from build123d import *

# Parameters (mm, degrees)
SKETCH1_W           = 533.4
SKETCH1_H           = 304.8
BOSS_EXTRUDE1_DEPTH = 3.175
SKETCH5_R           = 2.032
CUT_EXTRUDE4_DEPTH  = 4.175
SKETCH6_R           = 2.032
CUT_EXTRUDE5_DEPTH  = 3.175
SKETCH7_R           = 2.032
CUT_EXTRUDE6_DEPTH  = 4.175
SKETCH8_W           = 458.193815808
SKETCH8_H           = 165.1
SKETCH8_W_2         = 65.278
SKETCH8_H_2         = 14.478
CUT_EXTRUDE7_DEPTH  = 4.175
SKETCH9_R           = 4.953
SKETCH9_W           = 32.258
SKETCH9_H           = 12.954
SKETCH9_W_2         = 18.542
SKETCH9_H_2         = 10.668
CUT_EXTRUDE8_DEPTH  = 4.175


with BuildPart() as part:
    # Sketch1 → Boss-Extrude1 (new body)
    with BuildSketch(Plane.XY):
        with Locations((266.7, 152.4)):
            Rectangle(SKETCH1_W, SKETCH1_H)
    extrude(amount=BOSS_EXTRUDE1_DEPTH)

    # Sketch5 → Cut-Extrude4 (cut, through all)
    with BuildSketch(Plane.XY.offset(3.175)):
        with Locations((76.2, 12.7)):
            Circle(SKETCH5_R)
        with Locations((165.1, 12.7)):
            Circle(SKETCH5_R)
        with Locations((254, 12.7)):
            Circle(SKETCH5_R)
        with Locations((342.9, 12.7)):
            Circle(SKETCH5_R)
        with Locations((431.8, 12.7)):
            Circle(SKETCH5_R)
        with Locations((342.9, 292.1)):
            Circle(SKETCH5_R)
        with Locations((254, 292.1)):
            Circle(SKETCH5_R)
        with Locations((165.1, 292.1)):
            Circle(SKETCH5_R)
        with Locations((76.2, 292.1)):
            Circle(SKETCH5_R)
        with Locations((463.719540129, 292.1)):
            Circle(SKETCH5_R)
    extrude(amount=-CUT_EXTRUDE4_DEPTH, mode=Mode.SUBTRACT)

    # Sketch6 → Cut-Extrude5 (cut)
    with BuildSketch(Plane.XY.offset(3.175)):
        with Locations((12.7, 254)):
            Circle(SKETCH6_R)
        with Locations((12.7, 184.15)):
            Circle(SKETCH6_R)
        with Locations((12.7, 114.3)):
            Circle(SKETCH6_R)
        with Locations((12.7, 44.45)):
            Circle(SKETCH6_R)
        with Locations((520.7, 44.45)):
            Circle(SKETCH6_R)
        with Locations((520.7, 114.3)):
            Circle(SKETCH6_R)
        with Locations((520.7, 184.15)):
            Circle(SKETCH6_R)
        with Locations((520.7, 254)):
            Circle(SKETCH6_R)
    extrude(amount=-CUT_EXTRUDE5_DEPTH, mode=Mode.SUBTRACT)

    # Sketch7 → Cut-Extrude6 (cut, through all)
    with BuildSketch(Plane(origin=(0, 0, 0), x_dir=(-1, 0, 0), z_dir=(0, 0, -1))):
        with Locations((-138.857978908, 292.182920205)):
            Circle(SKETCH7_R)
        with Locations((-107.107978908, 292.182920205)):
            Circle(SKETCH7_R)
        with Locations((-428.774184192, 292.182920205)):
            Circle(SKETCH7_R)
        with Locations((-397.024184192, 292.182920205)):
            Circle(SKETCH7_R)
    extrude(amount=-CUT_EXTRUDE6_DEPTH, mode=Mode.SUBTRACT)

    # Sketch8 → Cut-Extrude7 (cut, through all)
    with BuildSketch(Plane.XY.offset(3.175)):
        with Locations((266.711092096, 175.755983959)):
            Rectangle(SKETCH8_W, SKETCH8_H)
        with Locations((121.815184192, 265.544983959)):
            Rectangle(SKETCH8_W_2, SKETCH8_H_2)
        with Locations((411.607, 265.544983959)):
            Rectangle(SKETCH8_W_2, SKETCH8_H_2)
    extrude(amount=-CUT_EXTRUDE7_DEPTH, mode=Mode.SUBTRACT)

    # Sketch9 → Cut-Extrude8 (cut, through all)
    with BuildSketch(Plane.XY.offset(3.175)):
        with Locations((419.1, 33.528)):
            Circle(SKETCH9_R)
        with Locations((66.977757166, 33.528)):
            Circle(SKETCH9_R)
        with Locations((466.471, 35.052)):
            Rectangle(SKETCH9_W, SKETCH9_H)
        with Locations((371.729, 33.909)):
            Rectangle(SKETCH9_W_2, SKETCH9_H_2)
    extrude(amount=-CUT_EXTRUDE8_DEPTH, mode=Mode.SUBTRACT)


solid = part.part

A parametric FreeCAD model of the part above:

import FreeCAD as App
import Part
import Sketcher

V = App.Vector
Q = App.Units.Quantity

doc = App.newDocument("Part")
params = doc.addObject("Spreadsheet::Sheet", "Params")
for row, (alias, value) in enumerate([
    ("sketch1_width", "21 in"),
    ("sketch1_height", "12 in"),
    ("pad1_length", "0.125 in"),
    ("sketch2_diameter", "0.16 in"),
    ("sketch3_diameter", "0.16 in"),
    ("pocket2_length", "0.125 in"),
    ("sketch4_diameter", "0.16 in"),
    ("sketch5_height", "6.5 in"),
    ("sketch5_width", "2.03 in"),
    ("sketch5_width2", "2.57 in"),
    ("sketch5_height2", "0.57 in"),
    ("sketch6_diameter", "0.39 in"),
    ("sketch6_width", "1.27 in"),
    ("sketch6_width2", "0.73 in"),
    ("sketch6_height", "0.51 in"),
    ("sketch6_height2", "0.42 in"),
], start=1):
    params.set(f"A{row}", alias)
    params.set(f"B{row}", "=" + value)
    params.setAlias(f"B{row}", alias)

body = doc.addObject("PartDesign::Body", "Body")

# Sketch on XY plane
sketch1 = body.newObject("Sketcher::SketchObject", "Sketch")
sketch1.AttachmentSupport = (doc.getObject("XY_Plane"), [""])
sketch1.MapMode = "FlatFace"
sketch1.addGeometry(Part.LineSegment(V(0, 305, 0), V(0, 0, 0)), False)
sketch1.addGeometry(Part.LineSegment(V(0, 0, 0), V(533, 0, 0)), False)
sketch1.addGeometry(Part.LineSegment(V(533, 0, 0), V(533, 305, 0)), False)
sketch1.addGeometry(Part.LineSegment(V(533, 305, 0), V(0, 305, 0)), False)
sketch1.addConstraint(Sketcher.Constraint("Coincident", 0, 2, 1, 1))
sketch1.addConstraint(Sketcher.Constraint("Coincident", 1, 2, 2, 1))
sketch1.addConstraint(Sketcher.Constraint("Coincident", 2, 2, 3, 1))
sketch1.addConstraint(Sketcher.Constraint("Coincident", 3, 2, 0, 1))
sketch1.addConstraint(Sketcher.Constraint("Vertical", 0))
sketch1.addConstraint(Sketcher.Constraint("Horizontal", 1))
sketch1.addConstraint(Sketcher.Constraint("Vertical", 2))
sketch1.addConstraint(Sketcher.Constraint("Horizontal", 3))
sketch1.addConstraint(Sketcher.Constraint("Coincident", 0, 2, -1, 1))
sketch1.addConstraint(Sketcher.Constraint("DistanceX", 1, 1, 1, 2, Q("21 in")))
sketch1.addConstraint(Sketcher.Constraint("DistanceY", 0, 2, 0, 1, Q("12 in")))
sketch1.setExpression("Constraints[9]", "Params.sketch1_width")
sketch1.setExpression("Constraints[10]", "Params.sketch1_height")
pad1 = body.newObject("PartDesign::Pad", "Pad")
pad1.Profile = sketch1
pad1.setExpression("Length", "Params.pad1_length")

# Sketch on XY plane
sketch2 = body.newObject("Sketcher::SketchObject", "Sketch001")
sketch2.AttachmentSupport = (doc.getObject("XY_Plane"), [""])
sketch2.MapMode = "FlatFace"
sketch2.AttachmentOffset = App.Placement(V(0, 0, 0.125 * 25.4), App.Rotation())
sketch2.addGeometry(Part.Circle(V(76.2, 12.7, 0), V(0, 0, 1), 2), False)
sketch2.addGeometry(Part.Circle(V(165.1, 12.7, 0), V(0, 0, 1), 2), False)
sketch2.addGeometry(Part.Circle(V(254, 12.7, 0), V(0, 0, 1), 2), False)
sketch2.addGeometry(Part.Circle(V(342.9, 12.7, 0), V(0, 0, 1), 2), False)
sketch2.addGeometry(Part.Circle(V(431.8, 12.7, 0), V(0, 0, 1), 2), False)
sketch2.addGeometry(Part.Circle(V(342.9, 292.1, 0), V(0, 0, 1), 2), False)
sketch2.addGeometry(Part.Circle(V(254, 292.1, 0), V(0, 0, 1), 2), False)
sketch2.addGeometry(Part.Circle(V(165.1, 292.1, 0), V(0, 0, 1), 2), False)
sketch2.addGeometry(Part.Circle(V(76.2, 292.1, 0), V(0, 0, 1), 2), False)
sketch2.addGeometry(Part.Circle(V(463.7, 292.1, 0), V(0, 0, 1), 2), False)
sketch2.addConstraint(Sketcher.Constraint("Equal", 0, 1))
sketch2.addConstraint(Sketcher.Constraint("Equal", 1, 2))
sketch2.addConstraint(Sketcher.Constraint("Equal", 2, 3))
sketch2.addConstraint(Sketcher.Constraint("Equal", 3, 4))
sketch2.addConstraint(Sketcher.Constraint("Equal", 4, 5))
sketch2.addConstraint(Sketcher.Constraint("Equal", 5, 6))
sketch2.addConstraint(Sketcher.Constraint("Equal", 6, 7))
sketch2.addConstraint(Sketcher.Constraint("Equal", 7, 8))
sketch2.addConstraint(Sketcher.Constraint("Equal", 8, 9))
sketch2.addConstraint(Sketcher.Constraint("Horizontal", 0, 3, 1, 3))
sketch2.addConstraint(Sketcher.Constraint("Horizontal", 1, 3, 2, 3))
sketch2.addConstraint(Sketcher.Constraint("Horizontal", 2, 3, 3, 3))
sketch2.addConstraint(Sketcher.Constraint("Horizontal", 3, 3, 4, 3))
sketch2.addConstraint(Sketcher.Constraint("Horizontal", 5, 3, 6, 3))
sketch2.addConstraint(Sketcher.Constraint("Horizontal", 6, 3, 7, 3))
sketch2.addConstraint(Sketcher.Constraint("Horizontal", 7, 3, 8, 3))
sketch2.addConstraint(Sketcher.Constraint("Horizontal", 8, 3, 9, 3))
sketch2.addConstraint(Sketcher.Constraint("Vertical", 3, 3, 5, 3))
sketch2.addConstraint(Sketcher.Constraint("Vertical", 2, 3, 6, 3))
sketch2.addConstraint(Sketcher.Constraint("Vertical", 1, 3, 7, 3))
sketch2.addConstraint(Sketcher.Constraint("Vertical", 0, 3, 8, 3))
sketch2.addConstraint(Sketcher.Constraint("Diameter", 0, Q("0.16 in")))
sketch2.addConstraint(Sketcher.Constraint("DistanceX", -1, 1, 0, 3, Q("3 in")))
sketch2.addConstraint(Sketcher.Constraint("DistanceX", -1, 1, 2, 3, Q("10 in")))
sketch2.addConstraint(Sketcher.Constraint("DistanceX", -1, 1, 4, 3, Q("17 in")))
sketch2.addConstraint(Sketcher.Constraint("DistanceX", 1, 3, 3, 3, Q("7 in")))
sketch2.addConstraint(Sketcher.Constraint("DistanceY", 3, 3, 5, 3, Q("11 in")))
sketch2.addConstraint(Sketcher.Constraint("DistanceY", -1, 1, 0, 3, Q("0.5 in")))
sketch2.addConstraint(Sketcher.Constraint("DistanceX", -1, 1, 1, 3, Q("6.5 in")))
sketch2.addConstraint(Sketcher.Constraint("DistanceX", -1, 1, 9, 3, Q("463.71954 mm")))
sketch2.setExpression("Constraints[21]", "Params.sketch2_diameter")
pocket1 = body.newObject("PartDesign::Pocket", "Pocket")
pocket1.Profile = sketch2
pocket1.Type = "ThroughAll"

# Sketch on XY plane
sketch3 = body.newObject("Sketcher::SketchObject", "Sketch002")
sketch3.AttachmentSupport = (doc.getObject("XY_Plane"), [""])
sketch3.MapMode = "FlatFace"
sketch3.AttachmentOffset = App.Placement(V(0, 0, 0.125 * 25.4), App.Rotation())
sketch3.addGeometry(Part.Circle(V(12.7, 254, 0), V(0, 0, 1), 2), False)
sketch3.addGeometry(Part.Circle(V(12.7, 184.2, 0), V(0, 0, 1), 2), False)
sketch3.addGeometry(Part.Circle(V(12.7, 114.3, 0), V(0, 0, 1), 2), False)
sketch3.addGeometry(Part.Circle(V(12.7, 44.5, 0), V(0, 0, 1), 2), False)
sketch3.addGeometry(Part.Circle(V(520.7, 44.5, 0), V(0, 0, 1), 2), False)
sketch3.addGeometry(Part.Circle(V(520.7, 114.3, 0), V(0, 0, 1), 2), False)
sketch3.addGeometry(Part.Circle(V(520.7, 184.2, 0), V(0, 0, 1), 2), False)
sketch3.addGeometry(Part.Circle(V(520.7, 254, 0), V(0, 0, 1), 2), False)
sketch3.addConstraint(Sketcher.Constraint("Equal", 0, 1))
sketch3.addConstraint(Sketcher.Constraint("Equal", 1, 2))
sketch3.addConstraint(Sketcher.Constraint("Equal", 2, 3))
sketch3.addConstraint(Sketcher.Constraint("Equal", 3, 4))
sketch3.addConstraint(Sketcher.Constraint("Equal", 4, 5))
sketch3.addConstraint(Sketcher.Constraint("Equal", 5, 6))
sketch3.addConstraint(Sketcher.Constraint("Equal", 6, 7))
sketch3.addConstraint(Sketcher.Constraint("Horizontal", 3, 3, 4, 3))
sketch3.addConstraint(Sketcher.Constraint("Horizontal", 2, 3, 5, 3))
sketch3.addConstraint(Sketcher.Constraint("Horizontal", 1, 3, 6, 3))
sketch3.addConstraint(Sketcher.Constraint("Horizontal", 0, 3, 7, 3))
sketch3.addConstraint(Sketcher.Constraint("Vertical", 0, 3, 1, 3))
sketch3.addConstraint(Sketcher.Constraint("Vertical", 1, 3, 2, 3))
sketch3.addConstraint(Sketcher.Constraint("Vertical", 2, 3, 3, 3))
sketch3.addConstraint(Sketcher.Constraint("Vertical", 4, 3, 5, 3))
sketch3.addConstraint(Sketcher.Constraint("Vertical", 5, 3, 6, 3))
sketch3.addConstraint(Sketcher.Constraint("Vertical", 6, 3, 7, 3))
sketch3.addConstraint(Sketcher.Constraint("Diameter", 0, Q("0.16 in")))
sketch3.addConstraint(Sketcher.Constraint("DistanceY", -1, 1, 0, 3, Q("10 in")))
sketch3.addConstraint(Sketcher.Constraint("DistanceX", 3, 3, 4, 3, Q("20 in")))
sketch3.addConstraint(Sketcher.Constraint("DistanceX", -1, 1, 0, 3, Q("0.5 in")))
sketch3.addConstraint(Sketcher.Constraint("DistanceY", -1, 1, 2, 3, Q("4.5 in")))
sketch3.addConstraint(Sketcher.Constraint("DistanceY", 3, 3, 1, 3, Q("5.5 in")))
sketch3.addConstraint(Sketcher.Constraint("DistanceY", -1, 1, 1, 3, Q("7.25 in")))
sketch3.setExpression("Constraints[17]", "Params.sketch3_diameter")
pocket2 = body.newObject("PartDesign::Pocket", "Pocket001")
pocket2.Profile = sketch3
pocket2.setExpression("Length", "Params.pocket2_length")

# Sketch on XY plane
sketch4 = body.newObject("Sketcher::SketchObject", "Sketch003")
sketch4.AttachmentSupport = (doc.getObject("XY_Plane"), [""])
sketch4.MapMode = "FlatFace"
sketch4.addGeometry(Part.Circle(V(138.9, 292.2, 0), V(0, 0, 1), 2), False)
sketch4.addGeometry(Part.Circle(V(107.1, 292.2, 0), V(0, 0, 1), 2), False)
sketch4.addGeometry(Part.Circle(V(428.8, 292.2, 0), V(0, 0, 1), 2), False)
sketch4.addGeometry(Part.Circle(V(397, 292.2, 0), V(0, 0, 1), 2), False)
sketch4.addConstraint(Sketcher.Constraint("Equal", 0, 1))
sketch4.addConstraint(Sketcher.Constraint("Equal", 1, 2))
sketch4.addConstraint(Sketcher.Constraint("Equal", 2, 3))
sketch4.addConstraint(Sketcher.Constraint("Horizontal", 0, 3, 1, 3))
sketch4.addConstraint(Sketcher.Constraint("Horizontal", 1, 3, 2, 3))
sketch4.addConstraint(Sketcher.Constraint("Horizontal", 2, 3, 3, 3))
sketch4.addConstraint(Sketcher.Constraint("Diameter", 0, Q("0.16 in")))
sketch4.addConstraint(Sketcher.Constraint("DistanceX", 1, 3, 0, 3, Q("1.25 in")))
sketch4.addConstraint(Sketcher.Constraint("DistanceX", 3, 3, 2, 3, Q("1.25 in")))
sketch4.addConstraint(Sketcher.Constraint("DistanceX", -1, 1, 0, 3, Q("138.857979 mm")))
sketch4.addConstraint(Sketcher.Constraint("DistanceY", -1, 1, 0, 3, Q("292.18292 mm")))
sketch4.addConstraint(Sketcher.Constraint("DistanceX", -1, 1, 2, 3, Q("428.774184 mm")))
sketch4.setExpression("Constraints[6]", "Params.sketch4_diameter")
pocket3 = body.newObject("PartDesign::Pocket", "Pocket002")
pocket3.Profile = sketch4
pocket3.Type = "ThroughAll"
pocket3.Reversed = True

# Sketch on XY plane
sketch5 = body.newObject("Sketcher::SketchObject", "Sketch004")
sketch5.AttachmentSupport = (doc.getObject("XY_Plane"), [""])
sketch5.MapMode = "FlatFace"
sketch5.AttachmentOffset = App.Placement(V(0, 0, 0.125 * 25.4), App.Rotation())
sketch5.addGeometry(Part.LineSegment(V(38, 258, 0), V(38, 93, 0)), False)
sketch5.addGeometry(Part.LineSegment(V(38, 93, 0), V(496, 93, 0)), False)
sketch5.addGeometry(Part.LineSegment(V(496, 93, 0), V(496, 258, 0)), False)
sketch5.addGeometry(Part.LineSegment(V(496, 258, 0), V(444, 258, 0)), False)
sketch5.addGeometry(Part.LineSegment(V(444, 258, 0), V(444, 273, 0)), False)
sketch5.addGeometry(Part.LineSegment(V(444, 273, 0), V(379, 273, 0)), False)
sketch5.addGeometry(Part.LineSegment(V(379, 273, 0), V(379, 258, 0)), False)
sketch5.addGeometry(Part.LineSegment(V(379, 258, 0), V(154, 258, 0)), False)
sketch5.addGeometry(Part.LineSegment(V(154, 258, 0), V(154, 273, 0)), False)
sketch5.addGeometry(Part.LineSegment(V(154, 273, 0), V(89, 273, 0)), False)
sketch5.addGeometry(Part.LineSegment(V(89, 273, 0), V(89, 258, 0)), False)
sketch5.addGeometry(Part.LineSegment(V(89, 258, 0), V(38, 258, 0)), False)
sketch5.addConstraint(Sketcher.Constraint("Coincident", 0, 2, 1, 1))
sketch5.addConstraint(Sketcher.Constraint("Coincident", 1, 2, 2, 1))
sketch5.addConstraint(Sketcher.Constraint("Coincident", 2, 2, 3, 1))
sketch5.addConstraint(Sketcher.Constraint("Coincident", 3, 2, 4, 1))
sketch5.addConstraint(Sketcher.Constraint("Coincident", 4, 2, 5, 1))
sketch5.addConstraint(Sketcher.Constraint("Coincident", 5, 2, 6, 1))
sketch5.addConstraint(Sketcher.Constraint("Coincident", 6, 2, 7, 1))
sketch5.addConstraint(Sketcher.Constraint("Coincident", 7, 2, 8, 1))
sketch5.addConstraint(Sketcher.Constraint("Coincident", 8, 2, 9, 1))
sketch5.addConstraint(Sketcher.Constraint("Coincident", 9, 2, 10, 1))
sketch5.addConstraint(Sketcher.Constraint("Coincident", 10, 2, 11, 1))
sketch5.addConstraint(Sketcher.Constraint("Coincident", 11, 2, 0, 1))
sketch5.addConstraint(Sketcher.Constraint("Vertical", 0))
sketch5.addConstraint(Sketcher.Constraint("Horizontal", 1))
sketch5.addConstraint(Sketcher.Constraint("Vertical", 2))
sketch5.addConstraint(Sketcher.Constraint("Horizontal", 3))
sketch5.addConstraint(Sketcher.Constraint("Vertical", 4))
sketch5.addConstraint(Sketcher.Constraint("Horizontal", 5))
sketch5.addConstraint(Sketcher.Constraint("Vertical", 6))
sketch5.addConstraint(Sketcher.Constraint("Horizontal", 7))
sketch5.addConstraint(Sketcher.Constraint("Vertical", 8))
sketch5.addConstraint(Sketcher.Constraint("Horizontal", 9))
sketch5.addConstraint(Sketcher.Constraint("Vertical", 10))
sketch5.addConstraint(Sketcher.Constraint("Horizontal", 11))
sketch5.addConstraint(Sketcher.Constraint("Horizontal", 3, 2, 6, 2))
sketch5.addConstraint(Sketcher.Constraint("Horizontal", 5, 2, 8, 2))
sketch5.addConstraint(Sketcher.Constraint("Horizontal", 7, 2, 10, 2))
sketch5.addConstraint(Sketcher.Constraint("Equal", 5, 9))
sketch5.addConstraint(Sketcher.Constraint("Equal", 3, 11))
sketch5.addConstraint(Sketcher.Constraint("DistanceY", 0, 2, 0, 1, Q("6.5 in")))
sketch5.addConstraint(Sketcher.Constraint("DistanceX", 3, 2, 3, 1, Q("2.03 in")))
sketch5.addConstraint(Sketcher.Constraint("DistanceX", 5, 2, 5, 1, Q("2.57 in")))
sketch5.addConstraint(Sketcher.Constraint("DistanceY", 4, 1, 4, 2, Q("0.57 in")))
sketch5.addConstraint(Sketcher.Constraint("DistanceX", -1, 1, 1, 2, Q("19.52 in")))
sketch5.addConstraint(Sketcher.Constraint("DistanceX", 1, 1, 1, 2, Q("458.193816 mm")))
sketch5.addConstraint(Sketcher.Constraint("DistanceY", -1, 1, 0, 2, Q("93.205984 mm")))
sketch5.setExpression("Constraints[29]", "Params.sketch5_height")
sketch5.setExpression("Constraints[30]", "Params.sketch5_width")
sketch5.setExpression("Constraints[31]", "Params.sketch5_width2")
sketch5.setExpression("Constraints[32]", "Params.sketch5_height2")
pocket4 = body.newObject("PartDesign::Pocket", "Pocket003")
pocket4.Profile = sketch5
pocket4.Type = "ThroughAll"

# Sketch on XY plane
sketch6 = body.newObject("Sketcher::SketchObject", "Sketch005")
sketch6.AttachmentSupport = (doc.getObject("XY_Plane"), [""])
sketch6.MapMode = "FlatFace"
sketch6.AttachmentOffset = App.Placement(V(0, 0, 0.125 * 25.4), App.Rotation())
sketch6.addGeometry(Part.Circle(V(419.1, 33.5, 0), V(0, 0, 1), 5), False)
sketch6.addGeometry(Part.Circle(V(67, 33.5, 0), V(0, 0, 1), 5), False)
sketch6.addGeometry(Part.LineSegment(V(450.3, 41.5, 0), V(450.3, 28.6, 0)), False)
sketch6.addGeometry(Part.LineSegment(V(450.3, 28.6, 0), V(482.6, 28.6, 0)), False)
sketch6.addGeometry(Part.LineSegment(V(482.6, 28.6, 0), V(482.6, 41.5, 0)), False)
sketch6.addGeometry(Part.LineSegment(V(482.6, 41.5, 0), V(450.3, 41.5, 0)), False)
sketch6.addGeometry(Part.LineSegment(V(362.5, 39.2, 0), V(362.5, 28.6, 0)), False)
sketch6.addGeometry(Part.LineSegment(V(362.5, 28.6, 0), V(381, 28.6, 0)), False)
sketch6.addGeometry(Part.LineSegment(V(381, 28.6, 0), V(381, 39.2, 0)), False)
sketch6.addGeometry(Part.LineSegment(V(381, 39.2, 0), V(362.5, 39.2, 0)), False)
sketch6.addConstraint(Sketcher.Constraint("Coincident", 2, 2, 3, 1))
sketch6.addConstraint(Sketcher.Constraint("Coincident", 3, 2, 4, 1))
sketch6.addConstraint(Sketcher.Constraint("Coincident", 4, 2, 5, 1))
sketch6.addConstraint(Sketcher.Constraint("Coincident", 5, 2, 2, 1))
sketch6.addConstraint(Sketcher.Constraint("Coincident", 6, 2, 7, 1))
sketch6.addConstraint(Sketcher.Constraint("Coincident", 7, 2, 8, 1))
sketch6.addConstraint(Sketcher.Constraint("Coincident", 8, 2, 9, 1))
sketch6.addConstraint(Sketcher.Constraint("Coincident", 9, 2, 6, 1))
sketch6.addConstraint(Sketcher.Constraint("Vertical", 2))
sketch6.addConstraint(Sketcher.Constraint("Horizontal", 3))
sketch6.addConstraint(Sketcher.Constraint("Vertical", 4))
sketch6.addConstraint(Sketcher.Constraint("Horizontal", 5))
sketch6.addConstraint(Sketcher.Constraint("Vertical", 6))
sketch6.addConstraint(Sketcher.Constraint("Horizontal", 7))
sketch6.addConstraint(Sketcher.Constraint("Vertical", 8))
sketch6.addConstraint(Sketcher.Constraint("Horizontal", 9))
sketch6.addConstraint(Sketcher.Constraint("Equal", 0, 1))
sketch6.addConstraint(Sketcher.Constraint("Horizontal", 0, 3, 1, 3))
sketch6.addConstraint(Sketcher.Constraint("Horizontal", 3, 2, 6, 2))
sketch6.addConstraint(Sketcher.Constraint("Diameter", 0, Q("0.39 in")))
sketch6.addConstraint(Sketcher.Constraint("DistanceX", -1, 1, 3, 2, Q("19 in")))
sketch6.addConstraint(Sketcher.Constraint("DistanceX", -1, 1, 7, 2, Q("15 in")))
sketch6.addConstraint(Sketcher.Constraint("DistanceX", 3, 1, 3, 2, Q("1.27 in")))
sketch6.addConstraint(Sketcher.Constraint("DistanceX", 7, 1, 7, 2, Q("0.73 in")))
sketch6.addConstraint(Sketcher.Constraint("DistanceY", 2, 2, 2, 1, Q("0.51 in")))
sketch6.addConstraint(Sketcher.Constraint("DistanceY", 6, 2, 6, 1, Q("0.42 in")))
sketch6.addConstraint(Sketcher.Constraint("DistanceX", -1, 1, 0, 3, Q("16.5 in")))
sketch6.addConstraint(Sketcher.Constraint("DistanceY", -1, 1, 0, 3, Q("1.32 in")))
sketch6.addConstraint(Sketcher.Constraint("DistanceY", -1, 1, 2, 2, Q("1.125 in")))
sketch6.addConstraint(Sketcher.Constraint("DistanceX", -1, 1, 1, 3, Q("66.977757 mm")))
sketch6.setExpression("Constraints[19]", "Params.sketch6_diameter")
sketch6.setExpression("Constraints[22]", "Params.sketch6_width")
sketch6.setExpression("Constraints[23]", "Params.sketch6_width2")
sketch6.setExpression("Constraints[24]", "Params.sketch6_height")
sketch6.setExpression("Constraints[25]", "Params.sketch6_height2")
pocket5 = body.newObject("PartDesign::Pocket", "Pocket004")
pocket5.Profile = sketch6
pocket5.Type = "ThroughAll"

doc.recompute()
